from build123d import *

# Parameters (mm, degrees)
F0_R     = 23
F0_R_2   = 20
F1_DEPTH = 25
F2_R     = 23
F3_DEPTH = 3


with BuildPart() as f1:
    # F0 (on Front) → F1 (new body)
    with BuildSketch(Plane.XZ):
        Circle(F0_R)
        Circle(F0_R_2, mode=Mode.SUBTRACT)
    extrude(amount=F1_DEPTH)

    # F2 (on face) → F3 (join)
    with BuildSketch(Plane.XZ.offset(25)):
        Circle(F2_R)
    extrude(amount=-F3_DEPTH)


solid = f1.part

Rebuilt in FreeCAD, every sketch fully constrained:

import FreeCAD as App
import Part
import Sketcher
from FreeCAD import Vector

doc = App.newDocument("Part")
body = doc.addObject("PartDesign::Body", "Body")

# Sketch on XZ plane
sketch1 = doc.addObject("Sketcher::SketchObject", "Sketch")
body.addObject(sketch1)
sketch1.AttachmentSupport = (doc.XZ_Plane, [""])
sketch1.MapMode = "FlatFace"
sketch1.addGeometry([
    Part.Circle(Vector(0, 0, 0), Vector(0, 0, 1), 23),
    Part.Circle(Vector(0, 0, 0), Vector(0, 0, 1), 20),
], False)
sketch1.addConstraint([
    Sketcher.Constraint("Coincident", 0, 3, -1, 1),
    Sketcher.Constraint("Coincident", 1, 3, -1, 1),
    Sketcher.Constraint("Diameter", 0, 46.0),
    Sketcher.Constraint("Diameter", 1, 40.0),
])
pad1 = doc.addObject("PartDesign::Pad", "Pad")
body.addObject(pad1)
pad1.Profile = sketch1
pad1.Length = 25

# Sketch on XZ plane
sketch2 = doc.addObject("Sketcher::SketchObject", "Sketch001")
body.addObject(sketch2)
sketch2.AttachmentSupport = (doc.XZ_Plane, [""])
sketch2.MapMode = "FlatFace"
sketch2.AttachmentOffset = App.Placement(Vector(0, 0, 25), App.Rotation())
sketch2.addGeometry(Part.Circle(Vector(0, 0, 0), Vector(0, 0, 1), 23), False)
sketch2.addConstraint([
    Sketcher.Constraint("Coincident", 0, 3, -1, 1),
    Sketcher.Constraint("Diameter", 0, 46.0),
])
pad2 = doc.addObject("PartDesign::Pad", "Pad001")
body.addObject(pad2)
pad2.Profile = sketch2
pad2.Length = 3
pad2.Reversed = True

doc.recompute()
